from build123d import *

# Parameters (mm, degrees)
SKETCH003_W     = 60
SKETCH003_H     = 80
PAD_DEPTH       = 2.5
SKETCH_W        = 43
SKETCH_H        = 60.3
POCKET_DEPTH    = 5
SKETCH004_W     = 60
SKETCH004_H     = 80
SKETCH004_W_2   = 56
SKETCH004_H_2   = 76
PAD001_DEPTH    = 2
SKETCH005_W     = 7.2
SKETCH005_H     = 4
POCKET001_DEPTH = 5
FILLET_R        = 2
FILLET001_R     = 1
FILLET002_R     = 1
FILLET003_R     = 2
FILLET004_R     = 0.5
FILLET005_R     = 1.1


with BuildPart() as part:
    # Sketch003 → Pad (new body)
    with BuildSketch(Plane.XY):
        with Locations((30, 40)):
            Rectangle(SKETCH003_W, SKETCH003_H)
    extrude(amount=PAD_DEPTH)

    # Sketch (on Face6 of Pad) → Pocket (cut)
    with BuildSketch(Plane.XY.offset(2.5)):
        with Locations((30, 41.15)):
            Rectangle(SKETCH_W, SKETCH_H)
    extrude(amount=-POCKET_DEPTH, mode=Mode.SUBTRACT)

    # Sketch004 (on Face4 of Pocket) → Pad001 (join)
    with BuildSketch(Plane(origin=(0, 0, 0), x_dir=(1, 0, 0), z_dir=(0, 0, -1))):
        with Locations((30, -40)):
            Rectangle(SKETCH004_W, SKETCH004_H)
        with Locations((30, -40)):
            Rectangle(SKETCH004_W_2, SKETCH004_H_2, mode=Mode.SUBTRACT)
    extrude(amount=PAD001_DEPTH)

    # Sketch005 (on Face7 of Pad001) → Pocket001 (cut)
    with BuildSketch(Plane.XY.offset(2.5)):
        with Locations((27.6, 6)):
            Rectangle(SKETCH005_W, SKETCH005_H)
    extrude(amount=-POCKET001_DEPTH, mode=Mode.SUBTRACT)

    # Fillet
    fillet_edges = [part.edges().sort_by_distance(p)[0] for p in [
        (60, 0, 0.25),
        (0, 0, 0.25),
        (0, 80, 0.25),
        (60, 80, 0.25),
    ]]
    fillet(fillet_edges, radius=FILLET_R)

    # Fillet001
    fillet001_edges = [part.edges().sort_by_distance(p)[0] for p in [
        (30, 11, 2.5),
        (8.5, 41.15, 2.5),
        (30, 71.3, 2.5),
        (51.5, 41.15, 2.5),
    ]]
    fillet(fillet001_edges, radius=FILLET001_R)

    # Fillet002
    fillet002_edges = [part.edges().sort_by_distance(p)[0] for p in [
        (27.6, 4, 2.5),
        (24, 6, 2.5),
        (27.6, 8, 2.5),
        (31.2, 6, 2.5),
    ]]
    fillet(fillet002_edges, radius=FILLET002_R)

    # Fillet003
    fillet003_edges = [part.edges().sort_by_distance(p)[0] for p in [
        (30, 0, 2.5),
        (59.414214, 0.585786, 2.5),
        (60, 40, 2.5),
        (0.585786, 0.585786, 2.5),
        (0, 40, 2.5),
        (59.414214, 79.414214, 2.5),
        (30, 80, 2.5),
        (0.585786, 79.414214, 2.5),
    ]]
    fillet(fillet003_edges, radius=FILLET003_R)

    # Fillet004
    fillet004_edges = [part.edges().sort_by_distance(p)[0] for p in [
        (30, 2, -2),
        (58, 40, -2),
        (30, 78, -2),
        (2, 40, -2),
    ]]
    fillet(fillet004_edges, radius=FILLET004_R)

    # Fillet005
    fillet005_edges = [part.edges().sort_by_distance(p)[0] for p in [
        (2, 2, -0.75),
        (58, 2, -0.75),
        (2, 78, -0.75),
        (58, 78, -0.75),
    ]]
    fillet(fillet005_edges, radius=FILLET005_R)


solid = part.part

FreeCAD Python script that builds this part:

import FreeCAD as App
import Part
import Sketcher

V = App.Vector
Q = App.Units.Quantity


def edges_at(feature, points):
    """Names of the edges that pass closest to the given points."""
    edges = feature.Shape.Edges
    near = lambda p: min(range(len(edges)), key=lambda i: edges[i].distToShape(Part.Vertex(*p))[0])
    return sorted({f"Edge{near(p) + 1}" for p in points})

doc = App.newDocument("Part")
params = doc.addObject("Spreadsheet::Sheet", "Params")
for row, (alias, value) in enumerate([
    ("sketch1_width", "60 mm"),
    ("sketch1_height", "80 mm"),
    ("pad1_length", "2.5 mm"),
    ("sketch2_width", "43 mm"),
    ("sketch2_height", "60.3 mm"),
    ("pocket1_length", "5 mm"),
    ("sketch3_width", "60 mm"),
    ("sketch3_width2", "56 mm"),
    ("sketch3_height", "80 mm"),
    ("sketch3_height2", "76 mm"),
    ("pad2_length", "2 mm"),
    ("sketch4_height", "4 mm"),
    ("sketch4_width", "7.2 mm"),
    ("pocket2_length", "5 mm"),
    ("fillet_radius", "2 mm"),
    ("fillet2_radius", "1 mm"),
    ("fillet3_radius", "1 mm"),
    ("fillet4_radius", "2 mm"),
    ("fillet5_radius", "0.5 mm"),
    ("fillet6_radius", "1.1 mm"),
], start=1):
    params.set(f"A{row}", alias)
    params.set(f"B{row}", "=" + value)
    params.setAlias(f"B{row}", alias)

body = doc.addObject("PartDesign::Body", "Body")

sketch1 = doc.addObject("Sketcher::SketchObject", "Sketch")
body.addObject(sketch1)
sketch1.AttachmentSupport = (doc.XY_Plane, [""])
sketch1.MapMode = "FlatFace"
sketch1.addGeometry([
    Part.LineSegment(V(0, 80, 0), V(0, 0, 0)),
    Part.LineSegment(V(0, 0, 0), V(60, 0, 0)),
    Part.LineSegment(V(60, 0, 0), V(60, 80, 0)),
    Part.LineSegment(V(60, 80, 0), V(0, 80, 0)),
], False)
sketch1.addConstraint([
    Sketcher.Constraint("Coincident", 0, 2, 1, 1),
    Sketcher.Constraint("Coincident", 1, 2, 2, 1),
    Sketcher.Constraint("Coincident", 2, 2, 3, 1),
    Sketcher.Constraint("Coincident", 3, 2, 0, 1),
    Sketcher.Constraint("Vertical", 0),
    Sketcher.Constraint("Horizontal", 1),
    Sketcher.Constraint("Vertical", 2),
    Sketcher.Constraint("Horizontal", 3),
    Sketcher.Constraint("Coincident", 0, 2, -1, 1),
    Sketcher.Constraint("DistanceX", 1, 1, 1, 2, Q("60 mm")),
    Sketcher.Constraint("DistanceY", 0, 2, 0, 1, Q("80 mm")),
])
sketch1.setExpression("Constraints[9]", "Params.sketch1_width")
sketch1.setExpression("Constraints[10]", "Params.sketch1_height")
pad1 = doc.addObject("PartDesign::Pad", "Pad")
body.addObject(pad1)
pad1.Profile = sketch1
pad1.setExpression("Length", "Params.pad1_length")

sketch2 = doc.addObject("Sketcher::SketchObject", "Sketch001")
body.addObject(sketch2)
sketch2.AttachmentSupport = (doc.XY_Plane, [""])
sketch2.MapMode = "FlatFace"
sketch2.AttachmentOffset = App.Placement(V(0, 0, 2.5), App.Rotation())
sketch2.addGeometry([
    Part.LineSegment(V(8, 71, 0), V(8, 11, 0)),
    Part.LineSegment(V(8, 11, 0), V(52, 11, 0)),
    Part.LineSegment(V(52, 11, 0), V(52, 71, 0)),
    Part.LineSegment(V(52, 71, 0), V(8, 71, 0)),
], False)
sketch2.addConstraint([
    Sketcher.Constraint("Coincident", 0, 2, 1, 1),
    Sketcher.Constraint("Coincident", 1, 2, 2, 1),
    Sketcher.Constraint("Coincident", 2, 2, 3, 1),
    Sketcher.Constraint("Coincident", 3, 2, 0, 1),
    Sketcher.Constraint("Vertical", 0),
    Sketcher.Constraint("Horizontal", 1),
    Sketcher.Constraint("Vertical", 2),
    Sketcher.Constraint("Horizontal", 3),
    Sketcher.Constraint("DistanceX", 1, 1, 1, 2, Q("43 mm")),
    Sketcher.Constraint("DistanceY", 0, 2, 0, 1, Q("60.3 mm")),
    Sketcher.Constraint("DistanceY", -1, 1, 0, 2, Q("11 mm")),
    Sketcher.Constraint("DistanceX", -1, 1, 0, 2, Q("8.5 mm")),
])
sketch2.setExpression("Constraints[8]", "Params.sketch2_width")
sketch2.setExpression("Constraints[9]", "Params.sketch2_height")
pocket1 = doc.addObject("PartDesign::Pocket", "Pocket")
body.addObject(pocket1)
pocket1.Profile = sketch2
pocket1.setExpression("Length", "Params.pocket1_length")

sketch3 = doc.addObject("Sketcher::SketchObject", "Sketch002")
body.addObject(sketch3)
sketch3.AttachmentSupport = (doc.XY_Plane, [""])
sketch3.MapMode = "FlatFace"
sketch3.addGeometry([
    Part.LineSegment(V(0, 0, 0), V(0, 80, 0)),
    Part.LineSegment(V(0, 80, 0), V(60, 80, 0)),
    Part.LineSegment(V(60, 80, 0), V(60, 0, 0)),
    Part.LineSegment(V(60, 0, 0), V(0, 0, 0)),
    Part.LineSegment(V(58, 78, 0), V(2, 78, 0)),
    Part.LineSegment(V(2, 78, 0), V(2, 2, 0)),
    Part.LineSegment(V(2, 2, 0), V(58, 2, 0)),
    Part.LineSegment(V(58, 2, 0), V(58, 78, 0)),
], False)
sketch3.addConstraint([
    Sketcher.Constraint("Coincident", 0, 2, 1, 1),
    Sketcher.Constraint("Coincident", 1, 2, 2, 1),
    Sketcher.Constraint("Coincident", 2, 2, 3, 1),
    Sketcher.Constraint("Coincident", 3, 2, 0, 1),
    Sketcher.Constraint("Coincident", 4, 2, 5, 1),
    Sketcher.Constraint("Coincident", 5, 2, 6, 1),
    Sketcher.Constraint("Coincident", 6, 2, 7, 1),
    Sketcher.Constraint("Coincident", 7, 2, 4, 1),
    Sketcher.Constraint("Vertical", 0),
    Sketcher.Constraint("Horizontal", 1),
    Sketcher.Constraint("Vertical", 2),
    Sketcher.Constraint("Horizontal", 3),
    Sketcher.Constraint("Horizontal", 4),
    Sketcher.Constraint("Vertical", 5),
    Sketcher.Constraint("Horizontal", 6),
    Sketcher.Constraint("Vertical", 7),
    Sketcher.Constraint("Coincident", 3, 2, -1, 1),
    Sketcher.Constraint("DistanceX", 1, 1, 1, 2, Q("60 mm")),
    Sketcher.Constraint("DistanceX", 4, 2, 4, 1, Q("56 mm")),
    Sketcher.Constraint("DistanceY", 0, 1, 0, 2, Q("80 mm")),
    Sketcher.Constraint("DistanceY", 5, 2, 5, 1, Q("76 mm")),
    Sketcher.Constraint("DistanceX", -1, 1, 4, 2, Q("2 mm")),
    Sketcher.Constraint("DistanceY", -1, 1, 4, 2, Q("78 mm")),
])
sketch3.setExpression("Constraints[17]", "Params.sketch3_width")
sketch3.setExpression("Constraints[18]", "Params.sketch3_width2")
sketch3.setExpression("Constraints[19]", "Params.sketch3_height")
sketch3.setExpression("Constraints[20]", "Params.sketch3_height2")
pad2 = doc.addObject("PartDesign::Pad", "Pad001")
body.addObject(pad2)
pad2.Profile = sketch3
pad2.setExpression("Length", "Params.pad2_length")
pad2.Reversed = True

sketch4 = doc.addObject("Sketcher::SketchObject", "Sketch003")
body.addObject(sketch4)
sketch4.AttachmentSupport = (doc.XY_Plane, [""])
sketch4.MapMode = "FlatFace"
sketch4.AttachmentOffset = App.Placement(V(0, 0, 2.5), App.Rotation())
sketch4.addGeometry([
    Part.LineSegment(V(24, 8, 0), V(24, 4, 0)),
    Part.LineSegment(V(24, 4, 0), V(31.2, 4, 0)),
    Part.LineSegment(V(31.2, 4, 0), V(31.2, 8, 0)),
    Part.LineSegment(V(31.2, 8, 0), V(24, 8, 0)),
], False)
sketch4.addConstraint([
    Sketcher.Constraint("Coincident", 0, 2, 1, 1),
    Sketcher.Constraint("Coincident", 1, 2, 2, 1),
    Sketcher.Constraint("Coincident", 2, 2, 3, 1),
    Sketcher.Constraint("Coincident", 3, 2, 0, 1),
    Sketcher.Constraint("Vertical", 0),
    Sketcher.Constraint("Horizontal", 1),
    Sketcher.Constraint("Vertical", 2),
    Sketcher.Constraint("Horizontal", 3),
    Sketcher.Constraint("DistanceY", 0, 2, 0, 1, Q("4 mm")),
    Sketcher.Constraint("DistanceX", 1, 1, 1, 2, Q("7.2 mm")),
    Sketcher.Constraint("DistanceX", -1, 1, 0, 2, Q("24 mm")),
    Sketcher.Constraint("DistanceY", -1, 1, 0, 2, Q("4 mm")),
])
sketch4.setExpression("Constraints[8]", "Params.sketch4_height")
sketch4.setExpression("Constraints[9]", "Params.sketch4_width")
pocket2 = doc.addObject("PartDesign::Pocket", "Pocket001")
body.addObject(pocket2)
pocket2.Profile = sketch4
pocket2.setExpression("Length", "Params.pocket2_length")
doc.recompute()

fillet = doc.addObject("PartDesign::Fillet", "Fillet")
body.addObject(fillet)
fillet.Base = (pocket2, edges_at(pocket2, [
    (60, 0, 0.25),
    (0, 0, 0.25),
    (0, 80, 0.25),
    (60, 80, 0.25),
]))
fillet.setExpression("Radius", "Params.fillet_radius")
doc.recompute()

fillet2 = doc.addObject("PartDesign::Fillet", "Fillet001")
body.addObject(fillet2)
fillet2.Base = (fillet, edges_at(fillet, [
    (30, 11, 2.5),
    (8.5, 41.15, 2.5),
    (30, 71.3, 2.5),
    (51.5, 41.15, 2.5),
]))
fillet2.setExpression("Radius", "Params.fillet2_radius")
doc.recompute()

fillet3 = doc.addObject("PartDesign::Fillet", "Fillet002")
body.addObject(fillet3)
fillet3.Base = (fillet2, edges_at(fillet2, [
    (27.6, 4, 2.5),
    (24, 6, 2.5),
    (27.6, 8, 2.5),
    (31.2, 6, 2.5),
]))
fillet3.setExpression("Radius", "Params.fillet3_radius")
doc.recompute()

fillet4 = doc.addObject("PartDesign::Fillet", "Fillet003")
body.addObject(fillet4)
fillet4.Base = (fillet3, edges_at(fillet3, [
    (30, 0, 2.5),
    (59.414, 0.586, 2.5),
    (60, 40, 2.5),
    (0.586, 0.586, 2.5),
    (0, 40, 2.5),
    (59.414, 79.414, 2.5),
    (30, 80, 2.5),
    (0.586, 79.414, 2.5),
]))
fillet4.setExpression("Radius", "Params.fillet4_radius")
doc.recompute()

fillet5 = doc.addObject("PartDesign::Fillet", "Fillet004")
body.addObject(fillet5)
fillet5.Base = (fillet4, edges_at(fillet4, [
    (30, 2, -2),
    (58, 40, -2),
    (30, 78, -2),
    (2, 40, -2),
]))
fillet5.setExpression("Radius", "Params.fillet5_radius")
doc.recompute()

fillet6 = doc.addObject("PartDesign::Fillet", "Fillet005")
body.addObject(fillet6)
fillet6.Base = (fillet5, edges_at(fillet5, [
    (2, 2, -0.75),
    (58, 2, -0.75),
    (2, 78, -0.75),
    (58, 78, -0.75),
]))
fillet6.setExpression("Radius", "Params.fillet6_radius")

doc.recompute()
